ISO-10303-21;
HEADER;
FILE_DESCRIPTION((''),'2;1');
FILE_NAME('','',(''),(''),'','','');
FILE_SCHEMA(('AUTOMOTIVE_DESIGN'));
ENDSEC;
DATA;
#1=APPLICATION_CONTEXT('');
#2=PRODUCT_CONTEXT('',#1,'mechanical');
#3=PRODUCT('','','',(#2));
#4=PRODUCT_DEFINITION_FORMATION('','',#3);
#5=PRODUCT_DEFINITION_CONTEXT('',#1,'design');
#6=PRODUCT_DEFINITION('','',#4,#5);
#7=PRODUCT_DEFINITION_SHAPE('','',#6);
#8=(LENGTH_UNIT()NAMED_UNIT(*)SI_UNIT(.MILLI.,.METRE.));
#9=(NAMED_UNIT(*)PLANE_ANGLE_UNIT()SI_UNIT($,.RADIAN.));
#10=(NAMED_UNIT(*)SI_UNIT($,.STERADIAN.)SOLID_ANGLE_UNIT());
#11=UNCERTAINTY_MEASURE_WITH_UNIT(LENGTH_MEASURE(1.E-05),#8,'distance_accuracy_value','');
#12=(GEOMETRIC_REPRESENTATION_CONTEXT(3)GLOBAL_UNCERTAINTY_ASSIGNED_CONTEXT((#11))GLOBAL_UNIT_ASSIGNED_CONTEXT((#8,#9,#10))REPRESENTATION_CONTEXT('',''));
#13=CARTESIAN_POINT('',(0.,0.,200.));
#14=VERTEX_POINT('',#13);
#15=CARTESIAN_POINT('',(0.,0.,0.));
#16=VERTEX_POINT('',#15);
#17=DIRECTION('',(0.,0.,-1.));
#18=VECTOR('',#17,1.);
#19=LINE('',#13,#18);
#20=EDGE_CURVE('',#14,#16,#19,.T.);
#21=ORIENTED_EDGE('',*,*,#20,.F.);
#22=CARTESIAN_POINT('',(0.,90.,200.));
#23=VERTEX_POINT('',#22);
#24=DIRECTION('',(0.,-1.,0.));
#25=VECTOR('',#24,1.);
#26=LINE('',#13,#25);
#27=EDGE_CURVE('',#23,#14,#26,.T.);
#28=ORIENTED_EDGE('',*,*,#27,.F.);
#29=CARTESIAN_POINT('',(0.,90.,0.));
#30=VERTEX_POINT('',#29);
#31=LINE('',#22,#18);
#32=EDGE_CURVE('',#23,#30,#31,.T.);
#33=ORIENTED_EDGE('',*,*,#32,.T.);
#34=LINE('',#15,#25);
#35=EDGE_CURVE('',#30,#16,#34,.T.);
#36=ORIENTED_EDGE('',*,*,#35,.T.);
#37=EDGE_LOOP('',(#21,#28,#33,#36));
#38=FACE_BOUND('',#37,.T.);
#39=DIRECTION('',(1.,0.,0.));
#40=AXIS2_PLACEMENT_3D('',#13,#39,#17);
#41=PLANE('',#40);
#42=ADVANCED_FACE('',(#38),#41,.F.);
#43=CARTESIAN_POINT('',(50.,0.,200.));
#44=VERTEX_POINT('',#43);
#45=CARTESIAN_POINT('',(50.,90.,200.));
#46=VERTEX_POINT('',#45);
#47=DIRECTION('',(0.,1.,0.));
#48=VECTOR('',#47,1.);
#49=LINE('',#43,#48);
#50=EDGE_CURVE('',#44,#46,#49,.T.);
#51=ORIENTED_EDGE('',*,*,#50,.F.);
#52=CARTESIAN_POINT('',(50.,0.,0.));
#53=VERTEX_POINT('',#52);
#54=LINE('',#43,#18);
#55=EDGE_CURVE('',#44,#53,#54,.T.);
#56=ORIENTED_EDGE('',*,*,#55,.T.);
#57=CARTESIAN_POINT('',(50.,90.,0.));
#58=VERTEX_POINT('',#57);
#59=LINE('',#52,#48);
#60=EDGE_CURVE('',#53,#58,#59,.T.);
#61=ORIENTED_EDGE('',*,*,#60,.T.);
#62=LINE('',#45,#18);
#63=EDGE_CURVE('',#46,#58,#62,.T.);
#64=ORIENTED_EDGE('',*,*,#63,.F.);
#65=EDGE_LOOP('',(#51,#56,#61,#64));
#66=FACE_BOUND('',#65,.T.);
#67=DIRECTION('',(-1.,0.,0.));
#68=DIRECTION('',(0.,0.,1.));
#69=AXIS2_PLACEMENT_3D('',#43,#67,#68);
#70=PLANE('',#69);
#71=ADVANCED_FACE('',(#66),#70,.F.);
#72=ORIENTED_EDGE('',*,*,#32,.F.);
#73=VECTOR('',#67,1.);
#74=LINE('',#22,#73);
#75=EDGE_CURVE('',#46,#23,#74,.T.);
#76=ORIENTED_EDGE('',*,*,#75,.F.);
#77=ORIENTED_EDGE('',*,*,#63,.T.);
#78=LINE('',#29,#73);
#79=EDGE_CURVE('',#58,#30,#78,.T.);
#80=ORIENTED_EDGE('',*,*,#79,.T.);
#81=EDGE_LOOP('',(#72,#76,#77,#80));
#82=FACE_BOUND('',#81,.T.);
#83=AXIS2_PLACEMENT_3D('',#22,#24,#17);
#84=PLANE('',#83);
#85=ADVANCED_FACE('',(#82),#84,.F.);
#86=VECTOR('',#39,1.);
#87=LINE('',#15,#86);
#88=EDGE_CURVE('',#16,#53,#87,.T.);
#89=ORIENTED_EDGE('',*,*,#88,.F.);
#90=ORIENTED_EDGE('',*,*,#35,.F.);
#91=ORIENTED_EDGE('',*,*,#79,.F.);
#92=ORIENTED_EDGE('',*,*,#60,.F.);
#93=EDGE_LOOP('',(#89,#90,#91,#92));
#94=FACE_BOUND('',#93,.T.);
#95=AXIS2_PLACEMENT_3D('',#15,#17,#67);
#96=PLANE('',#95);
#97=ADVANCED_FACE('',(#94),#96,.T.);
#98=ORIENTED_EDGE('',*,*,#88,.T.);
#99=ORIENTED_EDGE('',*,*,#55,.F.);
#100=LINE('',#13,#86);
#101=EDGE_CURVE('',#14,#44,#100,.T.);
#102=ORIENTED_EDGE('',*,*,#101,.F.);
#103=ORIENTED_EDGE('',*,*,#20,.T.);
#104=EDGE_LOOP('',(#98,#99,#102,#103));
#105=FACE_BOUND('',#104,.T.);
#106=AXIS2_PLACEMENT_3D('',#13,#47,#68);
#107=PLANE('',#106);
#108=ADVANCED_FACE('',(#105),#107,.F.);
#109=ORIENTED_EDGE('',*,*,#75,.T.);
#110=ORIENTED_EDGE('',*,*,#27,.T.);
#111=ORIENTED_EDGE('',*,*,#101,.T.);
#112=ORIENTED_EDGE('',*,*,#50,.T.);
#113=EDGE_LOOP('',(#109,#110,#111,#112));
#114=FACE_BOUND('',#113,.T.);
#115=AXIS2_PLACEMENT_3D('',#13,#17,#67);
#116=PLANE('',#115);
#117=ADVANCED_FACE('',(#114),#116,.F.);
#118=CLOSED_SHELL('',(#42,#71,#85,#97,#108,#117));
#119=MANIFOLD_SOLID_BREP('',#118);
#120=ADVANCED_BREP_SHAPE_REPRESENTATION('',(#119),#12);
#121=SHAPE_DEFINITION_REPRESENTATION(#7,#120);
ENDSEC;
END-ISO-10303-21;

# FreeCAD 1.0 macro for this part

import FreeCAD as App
import Part
import Sketcher

V = App.Vector

doc = App.newDocument("Part")
params = doc.addObject("Spreadsheet::Sheet", "Params")
for row, (alias, value) in enumerate([
    ("sketch1_width", "50 mm"),
    ("sketch1_height", "90 mm"),
    ("pad1_length", "200 mm"),
], start=1):
    params.set(f"A{row}", alias)
    params.set(f"B{row}", "=" + value)
    params.setAlias(f"B{row}", alias)

body = doc.addObject("PartDesign::Body", "Body")

sketch1 = body.newObject("Sketcher::SketchObject", "Sketch")
sketch1.AttachmentSupport = (doc.getObject("XY_Plane"), [""])
sketch1.MapMode = "FlatFace"
sketch1.addGeometry(Part.LineSegment(V(0, 90, 0), V(0, 0, 0)), False)
sketch1.addGeometry(Part.LineSegment(V(0, 0, 0), V(50, 0, 0)), False)
sketch1.addGeometry(Part.LineSegment(V(50, 0, 0), V(50, 90, 0)), False)
sketch1.addGeometry(Part.LineSegment(V(50, 90, 0), V(0, 90, 0)), False)
sketch1.addConstraint(Sketcher.Constraint("Coincident", 0, 2, 1, 1))
sketch1.addConstraint(Sketcher.Constraint("Coincident", 1, 2, 2, 1))
sketch1.addConstraint(Sketcher.Constraint("Coincident", 2, 2, 3, 1))
sketch1.addConstraint(Sketcher.Constraint("Coincident", 3, 2, 0, 1))
sketch1.addConstraint(Sketcher.Constraint("Vertical", 0))
sketch1.addConstraint(Sketcher.Constraint("Horizontal", 1))
sketch1.addConstraint(Sketcher.Constraint("Vertical", 2))
sketch1.addConstraint(Sketcher.Constraint("Horizontal", 3))
sketch1.addConstraint(Sketcher.Constraint("Coincident", 0, 2, -1, 1))
sketch1.addConstraint(Sketcher.Constraint("DistanceX", 1, 1, 1, 2, 50.0))
sketch1.addConstraint(Sketcher.Constraint("DistanceY", 0, 2, 0, 1, 90.0))
sketch1.setExpression("Constraints[9]", "Params.sketch1_width")
sketch1.setExpression("Constraints[10]", "Params.sketch1_height")
pad1 = body.newObject("PartDesign::Pad", "Pad")
pad1.Profile = sketch1
pad1.setExpression("Length", "Params.pad1_length")

doc.recompute()
